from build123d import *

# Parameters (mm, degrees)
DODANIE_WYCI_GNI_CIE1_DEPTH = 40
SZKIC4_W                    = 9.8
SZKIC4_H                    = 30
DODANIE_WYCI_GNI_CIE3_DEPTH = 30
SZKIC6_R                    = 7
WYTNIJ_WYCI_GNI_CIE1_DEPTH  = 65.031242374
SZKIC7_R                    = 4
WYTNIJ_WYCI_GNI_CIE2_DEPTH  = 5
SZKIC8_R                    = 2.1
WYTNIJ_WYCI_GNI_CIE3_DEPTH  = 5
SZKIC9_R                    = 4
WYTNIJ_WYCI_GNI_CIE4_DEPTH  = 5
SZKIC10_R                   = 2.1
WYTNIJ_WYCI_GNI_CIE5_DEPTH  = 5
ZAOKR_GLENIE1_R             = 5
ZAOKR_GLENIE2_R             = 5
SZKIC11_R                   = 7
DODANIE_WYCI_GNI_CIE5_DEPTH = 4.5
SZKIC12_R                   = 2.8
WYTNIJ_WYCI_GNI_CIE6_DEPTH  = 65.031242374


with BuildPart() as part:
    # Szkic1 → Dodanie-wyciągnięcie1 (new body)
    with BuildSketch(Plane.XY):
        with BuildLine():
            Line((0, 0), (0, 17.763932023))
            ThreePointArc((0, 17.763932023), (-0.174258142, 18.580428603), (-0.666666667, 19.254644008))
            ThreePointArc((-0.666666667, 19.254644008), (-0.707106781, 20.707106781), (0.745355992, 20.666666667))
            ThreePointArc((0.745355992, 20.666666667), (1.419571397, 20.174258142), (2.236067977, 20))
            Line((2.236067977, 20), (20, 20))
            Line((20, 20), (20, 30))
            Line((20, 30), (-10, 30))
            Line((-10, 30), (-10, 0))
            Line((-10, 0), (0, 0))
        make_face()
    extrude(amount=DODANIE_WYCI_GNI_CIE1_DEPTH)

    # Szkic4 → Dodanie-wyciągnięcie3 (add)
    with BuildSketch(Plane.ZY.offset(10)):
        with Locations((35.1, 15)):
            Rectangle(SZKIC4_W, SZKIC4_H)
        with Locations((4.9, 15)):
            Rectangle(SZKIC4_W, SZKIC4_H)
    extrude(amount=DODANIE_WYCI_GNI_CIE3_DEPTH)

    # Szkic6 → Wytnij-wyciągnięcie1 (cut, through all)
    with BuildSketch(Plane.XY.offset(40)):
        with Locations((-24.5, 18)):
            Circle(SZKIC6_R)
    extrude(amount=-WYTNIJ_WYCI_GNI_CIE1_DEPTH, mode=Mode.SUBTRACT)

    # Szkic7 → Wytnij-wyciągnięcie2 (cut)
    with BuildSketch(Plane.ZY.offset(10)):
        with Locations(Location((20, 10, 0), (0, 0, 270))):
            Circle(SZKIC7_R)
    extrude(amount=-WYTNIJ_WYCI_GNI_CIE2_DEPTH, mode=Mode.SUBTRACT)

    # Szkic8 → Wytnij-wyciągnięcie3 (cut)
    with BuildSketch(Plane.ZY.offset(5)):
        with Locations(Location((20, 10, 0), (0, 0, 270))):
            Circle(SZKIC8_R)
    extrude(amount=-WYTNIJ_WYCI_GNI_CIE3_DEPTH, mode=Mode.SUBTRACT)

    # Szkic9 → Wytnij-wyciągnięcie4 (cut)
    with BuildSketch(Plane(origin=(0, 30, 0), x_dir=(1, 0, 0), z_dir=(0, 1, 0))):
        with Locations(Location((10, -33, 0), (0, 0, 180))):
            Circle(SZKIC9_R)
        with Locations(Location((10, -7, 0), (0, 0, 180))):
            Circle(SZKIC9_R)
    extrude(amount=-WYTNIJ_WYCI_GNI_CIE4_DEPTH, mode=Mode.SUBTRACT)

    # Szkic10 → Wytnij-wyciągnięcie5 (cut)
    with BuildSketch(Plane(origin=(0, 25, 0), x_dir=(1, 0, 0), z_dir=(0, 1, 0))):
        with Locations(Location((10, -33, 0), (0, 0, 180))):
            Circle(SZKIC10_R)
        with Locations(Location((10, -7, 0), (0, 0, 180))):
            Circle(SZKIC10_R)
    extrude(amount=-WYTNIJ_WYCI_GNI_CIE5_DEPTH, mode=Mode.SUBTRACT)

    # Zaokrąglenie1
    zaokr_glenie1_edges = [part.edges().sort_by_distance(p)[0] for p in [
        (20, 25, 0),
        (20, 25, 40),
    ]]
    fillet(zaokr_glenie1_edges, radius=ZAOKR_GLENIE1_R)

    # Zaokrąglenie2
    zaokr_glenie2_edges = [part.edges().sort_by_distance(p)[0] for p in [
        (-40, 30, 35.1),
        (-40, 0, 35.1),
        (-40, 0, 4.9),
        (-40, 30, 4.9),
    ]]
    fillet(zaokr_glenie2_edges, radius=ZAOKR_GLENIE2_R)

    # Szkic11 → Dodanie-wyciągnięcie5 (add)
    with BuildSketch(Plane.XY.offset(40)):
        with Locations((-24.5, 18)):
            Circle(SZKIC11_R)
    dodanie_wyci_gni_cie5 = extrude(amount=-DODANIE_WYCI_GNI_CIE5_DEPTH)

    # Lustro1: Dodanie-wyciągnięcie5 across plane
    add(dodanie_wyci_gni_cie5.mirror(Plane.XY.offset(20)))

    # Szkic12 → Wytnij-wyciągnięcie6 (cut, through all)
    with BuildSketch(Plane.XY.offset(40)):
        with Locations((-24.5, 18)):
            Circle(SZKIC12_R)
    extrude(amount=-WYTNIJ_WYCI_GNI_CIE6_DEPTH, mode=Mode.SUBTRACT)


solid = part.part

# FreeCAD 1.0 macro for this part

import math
import FreeCAD as App
import Part
import Sketcher

V = App.Vector


def edges_at(feature, points):
    """Names of the edges that pass closest to the given points."""
    edges = feature.Shape.Edges
    near = lambda p: min(range(len(edges)), key=lambda i: edges[i].distToShape(Part.Vertex(*p))[0])
    return sorted({f"Edge{near(p) + 1}" for p in points})


def add_polygon(sketch, points):
    """Adds a closed chain of lines whose ends are joined by coincident constraints."""
    first, n = sketch.GeometryCount, len(points)
    for a, b in zip(points, points[1:] + points[:1]):
        sketch.addGeometry(Part.LineSegment(App.Vector(*a, 0), App.Vector(*b, 0)), False)
    for i in range(n):
        sketch.addConstraint(Sketcher.Constraint("Coincident", first + i, 2, first + (i + 1) % n, 1))

doc = App.newDocument("Part")
body = doc.addObject("PartDesign::Body", "Body")

sketch1 = doc.addObject("Sketcher::SketchObject", "Sketch")
body.addObject(sketch1)
sketch1.AttachmentSupport = (doc.XY_Plane, [""])
sketch1.MapMode = "FlatFace"
sketch1.addGeometry([
    Part.LineSegment(V(0, 0, 0), V(0, 17.763932, 0)),
    Part.ArcOfCircle(Part.Circle(V(-2, 17.763932, 0), V(0, 0, 1), 2), math.radians(0), math.radians(48.189685)),
    Part.ArcOfCircle(Part.Circle(V(0, 20, 0), V(0, 0, 1), 1), math.radians(41.810315), math.radians(228.189685)),
    Part.ArcOfCircle(Part.Circle(V(2.236068, 22, 0), V(0, 0, 1), 2), math.radians(-138.189685), math.radians(-90)),
    Part.LineSegment(V(2.236068, 20, 0), V(20, 20, 0)),
    Part.LineSegment(V(20, 20, 0), V(20, 30, 0)),
    Part.LineSegment(V(20, 30, 0), V(-10, 30, 0)),
    Part.LineSegment(V(-10, 30, 0), V(-10, 0, 0)),
    Part.LineSegment(V(-10, 0, 0), V(0, 0, 0)),
], False)
sketch1.addConstraint([
    Sketcher.Constraint("Tangent", 0, 2, 1, 1),
    Sketcher.Constraint("Tangent", 1, 2, 2, 2),
    Sketcher.Constraint("Tangent", 2, 1, 3, 1),
    Sketcher.Constraint("Tangent", 3, 2, 4, 1),
    Sketcher.Constraint("Coincident", 4, 2, 5, 1),
    Sketcher.Constraint("Coincident", 5, 2, 6, 1),
    Sketcher.Constraint("Coincident", 6, 2, 7, 1),
    Sketcher.Constraint("Coincident", 7, 2, 8, 1),
    Sketcher.Constraint("Coincident", 8, 2, 0, 1),
    Sketcher.Constraint("Vertical", 0),
    Sketcher.Constraint("Horizontal", 4),
    Sketcher.Constraint("Vertical", 5),
    Sketcher.Constraint("Horizontal", 6),
    Sketcher.Constraint("Vertical", 7),
    Sketcher.Constraint("Horizontal", 8),
    Sketcher.Constraint("Coincident", 8, 2, -1, 1),
    Sketcher.Constraint("Equal", 1, 3),
    Sketcher.Constraint("PointOnObject", 2, 3, -2),
    Sketcher.Constraint("Horizontal", 2, 3, 3, 2),
    Sketcher.Constraint("Equal", 4, 0),
    Sketcher.Constraint("Equal", 8, 5),
    Sketcher.Constraint("Radius", 1, 2.0),
    Sketcher.Constraint("Radius", 2, 1.0),
    Sketcher.Constraint("DistanceX", 6, 2, 6, 1, 30.0),
    Sketcher.Constraint("DistanceX", 8, 1, 8, 2, 10.0),
])
pad1 = doc.addObject("PartDesign::Pad", "Pad")
body.addObject(pad1)
pad1.Profile = sketch1
pad1.Length = 40

sketch2 = doc.addObject("Sketcher::SketchObject", "Sketch001")
body.addObject(sketch2)
sketch2.AttachmentSupport = (doc.YZ_Plane, [""])
sketch2.MapMode = "FlatFace"
sketch2.AttachmentOffset = App.Placement(V(0, 0, -10), App.Rotation())
add_polygon(sketch2, [(30, 30.2), (0, 30.2), (0, 40), (30, 40)])
add_polygon(sketch2, [(30, 0), (0, 0), (0, 9.8), (30, 9.8)])
sketch2.addConstraint([
    Sketcher.Constraint("Horizontal", 0),
    Sketcher.Constraint("Vertical", 1),
    Sketcher.Constraint("Horizontal", 2),
    Sketcher.Constraint("Vertical", 3),
    Sketcher.Constraint("Horizontal", 4),
    Sketcher.Constraint("Vertical", 5),
    Sketcher.Constraint("Horizontal", 6),
    Sketcher.Constraint("Vertical", 7),
    Sketcher.Constraint("Coincident", 4, 2, -1, 1),
    Sketcher.Constraint("PointOnObject", 0, 2, -2),
    Sketcher.Constraint("Vertical", 3, 2, 6, 2),
    Sketcher.Constraint("Equal", 3, 5),
    Sketcher.Constraint("DistanceX", 0, 2, 0, 1, 30.0),
    Sketcher.Constraint("DistanceY", 1, 1, 1, 2, 9.8),
    Sketcher.Constraint("DistanceY", -1, 1, 1, 2, 40.0),
])
pad2 = doc.addObject("PartDesign::Pad", "Pad001")
body.addObject(pad2)
pad2.Profile = sketch2
pad2.Length = 30
pad2.Reversed = True

sketch3 = doc.addObject("Sketcher::SketchObject", "Sketch002")
body.addObject(sketch3)
sketch3.AttachmentSupport = (doc.XY_Plane, [""])
sketch3.MapMode = "FlatFace"
sketch3.AttachmentOffset = App.Placement(V(0, 0, 40), App.Rotation())
sketch3.addGeometry(Part.Circle(V(-24.5, 18, 0), V(0, 0, 1), 7), False)
sketch3.addConstraint([
    Sketcher.Constraint("Diameter", 0, 14.0),
    Sketcher.Constraint("DistanceY", -1, 1, 0, 3, 18.0),
    Sketcher.Constraint("DistanceX", 0, 3, -1, 1, 24.5),
])
pocket1 = doc.addObject("PartDesign::Pocket", "Pocket")
body.addObject(pocket1)
pocket1.Profile = sketch3
pocket1.Type = "ThroughAll"

sketch4 = doc.addObject("Sketcher::SketchObject", "Sketch003")
body.addObject(sketch4)
sketch4.AttachmentSupport = (doc.YZ_Plane, [""])
sketch4.MapMode = "FlatFace"
sketch4.AttachmentOffset = App.Placement(V(0, 0, -10), App.Rotation())
sketch4.addGeometry(Part.Circle(V(10, 20, 0), V(0, 0, 1), 4), False)
sketch4.addConstraint([
    Sketcher.Constraint("Diameter", 0, 8.0),
    Sketcher.Constraint("DistanceX", -1, 1, 0, 3, 10.0),
    Sketcher.Constraint("DistanceY", -1, 1, 0, 3, 20.0),
])
pocket2 = doc.addObject("PartDesign::Pocket", "Pocket001")
body.addObject(pocket2)
pocket2.Profile = sketch4
pocket2.Length = 5
pocket2.Reversed = True

sketch5 = doc.addObject("Sketcher::SketchObject", "Sketch004")
body.addObject(sketch5)
sketch5.AttachmentSupport = (doc.YZ_Plane, [""])
sketch5.MapMode = "FlatFace"
sketch5.AttachmentOffset = App.Placement(V(0, 0, -5), App.Rotation())
sketch5.addGeometry(Part.Circle(V(10, 20, 0), V(0, 0, 1), 2.1), False)
sketch5.addConstraint([
    Sketcher.Constraint("Diameter", 0, 4.2),
    Sketcher.Constraint("DistanceX", -1, 1, 0, 3, 10.0),
    Sketcher.Constraint("DistanceY", -1, 1, 0, 3, 20.0),
])
pocket3 = doc.addObject("PartDesign::Pocket", "Pocket002")
body.addObject(pocket3)
pocket3.Profile = sketch5
pocket3.Length = 5
pocket3.Reversed = True

sketch6 = doc.addObject("Sketcher::SketchObject", "Sketch005")
body.addObject(sketch6)
sketch6.AttachmentSupport = (doc.XZ_Plane, [""])
sketch6.MapMode = "FlatFace"
sketch6.AttachmentOffset = App.Placement(V(0, 0, -30), App.Rotation())
sketch6.addGeometry([
    Part.Circle(V(10, 33, 0), V(0, 0, 1), 4),
    Part.Circle(V(10, 7, 0), V(0, 0, 1), 4),
], False)
sketch6.addConstraint([
    Sketcher.Constraint("Equal", 0, 1),
    Sketcher.Constraint("Vertical", 0, 3, 1, 3),
    Sketcher.Constraint("Diameter", 0, 8.0),
    Sketcher.Constraint("DistanceX", -1, 1, 0, 3, 10.0),
    Sketcher.Constraint("DistanceY", -1, 1, 0, 3, 33.0),
    Sketcher.Constraint("DistanceY", -1, 1, 1, 3, 7.0),
])
pocket4 = doc.addObject("PartDesign::Pocket", "Pocket003")
body.addObject(pocket4)
pocket4.Profile = sketch6
pocket4.Length = 5
pocket4.Reversed = True

sketch7 = doc.addObject("Sketcher::SketchObject", "Sketch006")
body.addObject(sketch7)
sketch7.AttachmentSupport = (doc.XZ_Plane, [""])
sketch7.MapMode = "FlatFace"
sketch7.AttachmentOffset = App.Placement(V(0, 0, -25), App.Rotation())
sketch7.addGeometry([
    Part.Circle(V(10, 33, 0), V(0, 0, 1), 2.1),
    Part.Circle(V(10, 7, 0), V(0, 0, 1), 2.1),
], False)
sketch7.addConstraint([
    Sketcher.Constraint("Equal", 0, 1),
    Sketcher.Constraint("Vertical", 0, 3, 1, 3),
    Sketcher.Constraint("Diameter", 0, 4.2),
    Sketcher.Constraint("DistanceX", -1, 1, 0, 3, 10.0),
    Sketcher.Constraint("DistanceY", -1, 1, 0, 3, 33.0),
    Sketcher.Constraint("DistanceY", -1, 1, 1, 3, 7.0),
])
pocket5 = doc.addObject("PartDesign::Pocket", "Pocket004")
body.addObject(pocket5)
pocket5.Profile = sketch7
pocket5.Length = 5
pocket5.Reversed = True
doc.recompute()

fillet = doc.addObject("PartDesign::Fillet", "Fillet")
body.addObject(fillet)
fillet.Base = (pocket5, edges_at(pocket5, [(20, 25, 0), (20, 25, 40)]))
fillet.Radius = 5
doc.recompute()

fillet2 = doc.addObject("PartDesign::Fillet", "Fillet001")
body.addObject(fillet2)
fillet2.Base = (fillet, edges_at(fillet, [
    (-40, 30, 35.1),
    (-40, 0, 35.1),
    (-40, 0, 4.9),
    (-40, 30, 4.9),
]))
fillet2.Radius = 5

sketch8 = doc.addObject("Sketcher::SketchObject", "Sketch007")
body.addObject(sketch8)
sketch8.AttachmentSupport = (doc.XY_Plane, [""])
sketch8.MapMode = "FlatFace"
sketch8.AttachmentOffset = App.Placement(V(0, 0, 40), App.Rotation())
sketch8.addGeometry(Part.Circle(V(-24.5, 18, 0), V(0, 0, 1), 7), False)
sketch8.addConstraint([
    Sketcher.Constraint("Diameter", 0, 14.0),
    Sketcher.Constraint("DistanceY", -1, 1, 0, 3, 18.0),
    Sketcher.Constraint("DistanceX", 0, 3, -1, 1, 24.5),
])
pad3 = doc.addObject("PartDesign::Pad", "Pad002")
body.addObject(pad3)
pad3.Profile = sketch8
pad3.Length = 4.5
pad3.Reversed = True
doc.recompute()

datumplane = doc.addObject("PartDesign::Plane", "DatumPlane")
body.addObject(datumplane)
datumplane.AttachmentSupport = (doc.XY_Plane, [""])
datumplane.MapMode = "FlatFace"
datumplane.AttachmentOffset = App.Placement(V(0, 0, 20), App.Rotation())
mirrored = doc.addObject("PartDesign::Mirrored", "Mirrored")
body.addObject(mirrored)
mirrored.Originals = [pad3]
mirrored.MirrorPlane = (datumplane, [""])
body.Tip = mirrored

sketch9 = doc.addObject("Sketcher::SketchObject", "Sketch008")
body.addObject(sketch9)
sketch9.AttachmentSupport = (doc.XY_Plane, [""])
sketch9.MapMode = "FlatFace"
sketch9.AttachmentOffset = App.Placement(V(0, 0, 40), App.Rotation())
sketch9.addGeometry(Part.Circle(V(-24.5, 18, 0), V(0, 0, 1), 2.8), False)
sketch9.addConstraint([
    Sketcher.Constraint("Diameter", 0, 5.6),
    Sketcher.Constraint("DistanceY", -1, 1, 0, 3, 18.0),
    Sketcher.Constraint("DistanceX", 0, 3, -1, 1, 24.5),
])
pocket6 = doc.addObject("PartDesign::Pocket", "Pocket005")
body.addObject(pocket6)
pocket6.Profile = sketch9
pocket6.Type = "ThroughAll"

doc.recompute()
